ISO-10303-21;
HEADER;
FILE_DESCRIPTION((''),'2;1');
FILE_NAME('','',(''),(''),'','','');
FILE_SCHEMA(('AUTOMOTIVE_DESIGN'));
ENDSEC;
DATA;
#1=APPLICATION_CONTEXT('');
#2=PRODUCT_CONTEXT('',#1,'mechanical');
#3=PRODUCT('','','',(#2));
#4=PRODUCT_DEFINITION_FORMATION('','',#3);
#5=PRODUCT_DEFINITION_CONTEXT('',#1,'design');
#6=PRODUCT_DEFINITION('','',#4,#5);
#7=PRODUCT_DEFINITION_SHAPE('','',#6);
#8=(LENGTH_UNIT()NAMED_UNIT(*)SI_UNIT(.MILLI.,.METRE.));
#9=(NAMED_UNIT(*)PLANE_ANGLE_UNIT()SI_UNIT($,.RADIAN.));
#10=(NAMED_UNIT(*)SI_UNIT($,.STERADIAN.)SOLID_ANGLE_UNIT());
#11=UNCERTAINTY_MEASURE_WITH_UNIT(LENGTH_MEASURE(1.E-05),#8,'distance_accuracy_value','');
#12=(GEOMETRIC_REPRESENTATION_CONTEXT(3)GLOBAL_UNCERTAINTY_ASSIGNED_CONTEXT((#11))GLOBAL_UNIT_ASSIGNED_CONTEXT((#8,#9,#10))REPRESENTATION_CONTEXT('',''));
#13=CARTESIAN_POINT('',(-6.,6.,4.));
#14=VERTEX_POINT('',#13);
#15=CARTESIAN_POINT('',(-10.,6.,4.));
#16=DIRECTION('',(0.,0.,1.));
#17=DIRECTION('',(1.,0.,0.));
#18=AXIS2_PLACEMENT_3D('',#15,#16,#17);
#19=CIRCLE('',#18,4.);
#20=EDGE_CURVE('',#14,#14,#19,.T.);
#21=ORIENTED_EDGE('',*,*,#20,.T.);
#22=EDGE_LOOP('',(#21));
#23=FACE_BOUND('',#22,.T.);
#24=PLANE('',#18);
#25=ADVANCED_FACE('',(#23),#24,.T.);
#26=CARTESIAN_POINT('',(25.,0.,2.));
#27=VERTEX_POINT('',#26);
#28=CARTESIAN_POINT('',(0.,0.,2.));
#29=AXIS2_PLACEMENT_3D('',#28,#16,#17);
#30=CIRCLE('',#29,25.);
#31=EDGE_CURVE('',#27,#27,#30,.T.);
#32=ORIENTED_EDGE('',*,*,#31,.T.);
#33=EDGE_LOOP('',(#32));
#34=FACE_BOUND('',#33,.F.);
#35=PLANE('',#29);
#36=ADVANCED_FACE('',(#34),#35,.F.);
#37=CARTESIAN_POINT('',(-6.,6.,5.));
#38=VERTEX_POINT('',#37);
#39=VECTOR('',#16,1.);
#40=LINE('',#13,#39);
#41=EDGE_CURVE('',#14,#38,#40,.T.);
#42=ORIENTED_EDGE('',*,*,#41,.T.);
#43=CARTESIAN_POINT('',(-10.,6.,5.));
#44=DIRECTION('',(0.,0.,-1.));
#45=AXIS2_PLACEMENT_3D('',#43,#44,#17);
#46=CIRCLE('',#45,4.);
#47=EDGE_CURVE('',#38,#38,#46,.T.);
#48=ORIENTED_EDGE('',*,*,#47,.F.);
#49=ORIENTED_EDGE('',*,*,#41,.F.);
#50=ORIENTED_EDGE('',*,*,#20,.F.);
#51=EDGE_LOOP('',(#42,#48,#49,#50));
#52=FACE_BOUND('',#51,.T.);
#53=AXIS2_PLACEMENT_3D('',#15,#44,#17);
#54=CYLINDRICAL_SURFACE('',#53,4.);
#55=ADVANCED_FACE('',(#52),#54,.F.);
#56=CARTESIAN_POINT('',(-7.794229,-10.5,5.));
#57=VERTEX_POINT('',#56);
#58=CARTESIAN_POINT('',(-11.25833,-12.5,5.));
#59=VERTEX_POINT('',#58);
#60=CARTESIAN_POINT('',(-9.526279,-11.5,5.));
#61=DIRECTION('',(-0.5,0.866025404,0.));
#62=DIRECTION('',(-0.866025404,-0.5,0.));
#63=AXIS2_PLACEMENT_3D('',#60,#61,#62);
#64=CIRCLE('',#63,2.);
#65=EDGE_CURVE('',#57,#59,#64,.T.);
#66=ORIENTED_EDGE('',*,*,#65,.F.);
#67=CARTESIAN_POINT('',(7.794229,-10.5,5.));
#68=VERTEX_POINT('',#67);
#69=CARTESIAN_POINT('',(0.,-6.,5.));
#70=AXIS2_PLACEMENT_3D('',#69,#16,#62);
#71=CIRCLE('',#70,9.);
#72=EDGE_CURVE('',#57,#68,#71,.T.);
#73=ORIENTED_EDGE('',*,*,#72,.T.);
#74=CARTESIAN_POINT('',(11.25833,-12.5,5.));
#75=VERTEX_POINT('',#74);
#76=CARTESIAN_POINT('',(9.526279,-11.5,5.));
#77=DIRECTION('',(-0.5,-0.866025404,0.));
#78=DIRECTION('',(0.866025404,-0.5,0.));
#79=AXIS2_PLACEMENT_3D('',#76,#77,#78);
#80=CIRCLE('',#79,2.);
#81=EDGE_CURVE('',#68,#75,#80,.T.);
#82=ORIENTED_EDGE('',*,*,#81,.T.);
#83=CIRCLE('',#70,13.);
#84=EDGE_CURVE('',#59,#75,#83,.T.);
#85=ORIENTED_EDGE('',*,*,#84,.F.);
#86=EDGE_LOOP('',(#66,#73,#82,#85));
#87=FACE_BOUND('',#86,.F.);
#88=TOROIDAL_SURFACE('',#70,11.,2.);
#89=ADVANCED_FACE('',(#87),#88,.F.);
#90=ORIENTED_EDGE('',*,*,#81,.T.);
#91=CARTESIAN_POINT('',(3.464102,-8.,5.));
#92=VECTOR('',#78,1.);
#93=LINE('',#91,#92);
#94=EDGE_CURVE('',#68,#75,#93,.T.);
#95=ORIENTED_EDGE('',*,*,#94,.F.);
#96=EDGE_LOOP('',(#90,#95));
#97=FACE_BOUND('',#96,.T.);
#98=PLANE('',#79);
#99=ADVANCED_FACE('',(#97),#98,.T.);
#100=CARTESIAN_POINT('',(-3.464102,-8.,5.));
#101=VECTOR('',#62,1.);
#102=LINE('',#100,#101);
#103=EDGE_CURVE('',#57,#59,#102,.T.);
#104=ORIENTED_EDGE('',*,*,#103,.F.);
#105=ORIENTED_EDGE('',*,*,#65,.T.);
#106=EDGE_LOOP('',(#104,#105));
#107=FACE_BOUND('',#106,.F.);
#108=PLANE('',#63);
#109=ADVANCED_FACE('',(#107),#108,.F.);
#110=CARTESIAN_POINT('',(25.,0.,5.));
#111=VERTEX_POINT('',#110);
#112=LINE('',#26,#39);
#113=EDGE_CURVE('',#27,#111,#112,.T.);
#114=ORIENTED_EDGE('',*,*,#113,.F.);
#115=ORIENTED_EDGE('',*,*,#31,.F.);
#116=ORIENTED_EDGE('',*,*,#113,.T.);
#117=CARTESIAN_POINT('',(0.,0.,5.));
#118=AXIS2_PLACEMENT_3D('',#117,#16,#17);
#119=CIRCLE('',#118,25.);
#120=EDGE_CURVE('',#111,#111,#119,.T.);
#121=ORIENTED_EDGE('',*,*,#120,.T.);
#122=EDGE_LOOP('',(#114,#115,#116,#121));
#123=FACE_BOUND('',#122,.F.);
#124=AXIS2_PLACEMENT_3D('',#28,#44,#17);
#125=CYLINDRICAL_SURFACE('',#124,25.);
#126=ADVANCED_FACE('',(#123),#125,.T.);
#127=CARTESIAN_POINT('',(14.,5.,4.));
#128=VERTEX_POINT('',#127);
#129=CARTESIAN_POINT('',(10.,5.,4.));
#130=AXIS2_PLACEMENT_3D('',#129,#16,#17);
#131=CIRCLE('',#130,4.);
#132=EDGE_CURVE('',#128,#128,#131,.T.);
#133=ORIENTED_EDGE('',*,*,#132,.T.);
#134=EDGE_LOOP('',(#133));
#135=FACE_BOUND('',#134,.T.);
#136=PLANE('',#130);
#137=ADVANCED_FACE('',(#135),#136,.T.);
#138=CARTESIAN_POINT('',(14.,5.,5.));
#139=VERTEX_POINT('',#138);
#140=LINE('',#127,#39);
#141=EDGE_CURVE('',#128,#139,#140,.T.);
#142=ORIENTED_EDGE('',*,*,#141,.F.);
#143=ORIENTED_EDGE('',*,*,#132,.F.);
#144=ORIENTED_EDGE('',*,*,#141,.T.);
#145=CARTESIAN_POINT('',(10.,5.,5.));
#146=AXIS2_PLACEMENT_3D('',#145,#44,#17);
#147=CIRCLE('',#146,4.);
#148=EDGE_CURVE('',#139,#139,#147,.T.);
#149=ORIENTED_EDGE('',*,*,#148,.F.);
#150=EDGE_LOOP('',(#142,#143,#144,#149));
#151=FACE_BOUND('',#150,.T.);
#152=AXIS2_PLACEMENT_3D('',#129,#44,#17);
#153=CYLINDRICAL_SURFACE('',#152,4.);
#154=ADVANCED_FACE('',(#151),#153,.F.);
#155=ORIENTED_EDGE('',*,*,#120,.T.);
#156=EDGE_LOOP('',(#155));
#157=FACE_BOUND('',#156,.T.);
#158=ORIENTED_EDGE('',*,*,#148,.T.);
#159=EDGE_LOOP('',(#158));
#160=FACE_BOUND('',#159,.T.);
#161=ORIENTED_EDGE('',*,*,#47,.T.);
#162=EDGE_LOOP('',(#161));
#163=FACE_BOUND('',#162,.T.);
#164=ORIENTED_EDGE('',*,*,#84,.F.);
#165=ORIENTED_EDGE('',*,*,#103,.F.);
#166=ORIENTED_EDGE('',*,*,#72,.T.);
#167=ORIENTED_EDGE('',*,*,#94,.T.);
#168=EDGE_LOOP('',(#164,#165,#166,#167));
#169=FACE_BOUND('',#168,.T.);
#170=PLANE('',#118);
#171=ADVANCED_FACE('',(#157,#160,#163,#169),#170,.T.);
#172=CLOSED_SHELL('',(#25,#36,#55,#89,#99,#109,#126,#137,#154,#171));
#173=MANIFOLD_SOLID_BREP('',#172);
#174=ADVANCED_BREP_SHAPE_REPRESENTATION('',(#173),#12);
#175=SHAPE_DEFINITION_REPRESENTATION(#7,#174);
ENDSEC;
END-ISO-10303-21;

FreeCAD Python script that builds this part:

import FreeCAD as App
import Part
import Sketcher

doc = App.newDocument("Part")
body = doc.addObject("PartDesign::Body", "Body")

# Sketch on XZ plane
sketch1 = body.newObject("Sketcher::SketchObject", "Sketch")
sketch1.AttachmentSupport = (doc.getObject("XZ_Plane"), [""])
sketch1.MapMode = "FlatFace"
sketch1.addGeometry(Part.Circle(App.Vector(11, 0, 0), App.Vector(0, 0, 1), 2), False)
sketch1.addConstraint(Sketcher.Constraint("PointOnObject", 0, 3, -1))
sketch1.addConstraint(Sketcher.Constraint("Diameter", 0, 4.0))
sketch1.addConstraint(Sketcher.Constraint("DistanceX", -1, 1, 0, 3, 11.0))
revolution = body.newObject("PartDesign::Revolution", "Revolution")
revolution.Profile = sketch1
revolution.ReferenceAxis = (sketch1, ["V_Axis"])
revolution.Angle = 120
body2 = doc.addObject("PartDesign::Body", "Body001")
doc.recompute()

body.Placement = App.Placement(App.Vector(0, -6, 5), App.Rotation(App.Vector(0, 0, -1), 150))
boolean = body2.newObject("PartDesign::Boolean", "Boolean")
boolean.Type = "Fuse"
boolean.addObjects([body])
body3 = doc.addObject("PartDesign::Body", "Body002")

# Sketch on XY plane
sketch2 = body3.newObject("Sketcher::SketchObject", "Sketch001")
sketch2.AttachmentSupport = (doc.getObject("XY_Plane002"), [""])
sketch2.MapMode = "FlatFace"
sketch2.AttachmentOffset = App.Placement(App.Vector(0, 0, 2), App.Rotation())
sketch2.addGeometry(Part.Circle(App.Vector(10, 5, 0), App.Vector(0, 0, 1), 4), False)
sketch2.addConstraint(Sketcher.Constraint("Diameter", 0, 8.0))
sketch2.addConstraint(Sketcher.Constraint("DistanceX", -1, 1, 0, 3, 10.0))
sketch2.addConstraint(Sketcher.Constraint("DistanceY", -1, 1, 0, 3, 5.0))
pad1 = body3.newObject("PartDesign::Pad", "Pad")
pad1.Profile = sketch2
pad1.Length = 4
body4 = doc.addObject("PartDesign::Body", "Body003")

# Sketch on XY plane
sketch3 = body4.newObject("Sketcher::SketchObject", "Sketch002")
sketch3.AttachmentSupport = (doc.getObject("XY_Plane003"), [""])
sketch3.MapMode = "FlatFace"
sketch3.AttachmentOffset = App.Placement(App.Vector(0, 0, 2), App.Rotation())
sketch3.addGeometry(Part.Circle(App.Vector(-10, 6, 0), App.Vector(0, 0, 1), 4), False)
sketch3.addConstraint(Sketcher.Constraint("Diameter", 0, 8.0))
sketch3.addConstraint(Sketcher.Constraint("DistanceX", 0, 3, -1, 1, 10.0))
sketch3.addConstraint(Sketcher.Constraint("DistanceY", -1, 1, 0, 3, 6.0))
pad2 = body4.newObject("PartDesign::Pad", "Pad001")
pad2.Profile = sketch3
pad2.Length = 4
body5 = doc.addObject("PartDesign::Body", "Body004")

# Sketch on XY plane
sketch4 = body5.newObject("Sketcher::SketchObject", "Sketch003")
sketch4.AttachmentSupport = (doc.getObject("XY_Plane004"), [""])
sketch4.MapMode = "FlatFace"
sketch4.addGeometry(Part.Circle(App.Vector(0, 0, 0), App.Vector(0, 0, 1), 25), False)
sketch4.addConstraint(Sketcher.Constraint("Coincident", 0, 3, -1, 1))
sketch4.addConstraint(Sketcher.Constraint("Diameter", 0, 50.0))
pad3 = body5.newObject("PartDesign::Pad", "Pad002")
pad3.Profile = sketch4
pad3.Length = 3
doc.recompute()

boolean2 = body5.newObject("PartDesign::Boolean", "Boolean001")
boolean2.Type = "Cut"
boolean2.addObjects([body4])
doc.recompute()

boolean3 = body5.newObject("PartDesign::Boolean", "Boolean002")
boolean3.Type = "Cut"
boolean3.addObjects([body3])
body6 = doc.addObject("PartDesign::Body", "Body005")
doc.recompute()

body5.Placement = App.Placement(App.Vector(0, 0, 2), App.Rotation(App.Vector(0, 0, 1), 0))
boolean4 = body6.newObject("PartDesign::Boolean", "Boolean003")
boolean4.Type = "Fuse"
boolean4.addObjects([body5])
doc.recompute()

boolean5 = body6.newObject("PartDesign::Boolean", "Boolean004")
boolean5.Type = "Cut"
boolean5.addObjects([body2])

doc.recompute()
